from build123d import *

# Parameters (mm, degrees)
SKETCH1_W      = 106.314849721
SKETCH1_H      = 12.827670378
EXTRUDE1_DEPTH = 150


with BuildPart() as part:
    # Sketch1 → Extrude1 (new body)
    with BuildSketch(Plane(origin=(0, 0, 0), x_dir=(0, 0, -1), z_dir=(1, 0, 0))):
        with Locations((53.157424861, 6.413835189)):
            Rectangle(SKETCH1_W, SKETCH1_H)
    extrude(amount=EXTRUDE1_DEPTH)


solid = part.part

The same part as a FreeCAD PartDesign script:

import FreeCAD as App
import Part
import Sketcher

doc = App.newDocument("Part")
body = doc.addObject("PartDesign::Body", "Body")

# Sketch on YZ plane
sketch1 = doc.addObject("Sketcher::SketchObject", "Sketch")
body.addObject(sketch1)
sketch1.AttachmentSupport = (doc.YZ_Plane, [""])
sketch1.MapMode = "FlatFace"
sketch1.addGeometry([
    Part.LineSegment(App.Vector(13, 0, 0), App.Vector(0, 0, 0)),
    Part.LineSegment(App.Vector(0, 0, 0), App.Vector(0, -106, 0)),
    Part.LineSegment(App.Vector(0, -106, 0), App.Vector(13, -106, 0)),
    Part.LineSegment(App.Vector(13, -106, 0), App.Vector(13, 0, 0)),
], False)
sketch1.addConstraint([
    Sketcher.Constraint("Coincident", 0, 2, 1, 1),
    Sketcher.Constraint("Coincident", 1, 2, 2, 1),
    Sketcher.Constraint("Coincident", 2, 2, 3, 1),
    Sketcher.Constraint("Coincident", 3, 2, 0, 1),
    Sketcher.Constraint("Horizontal", 0),
    Sketcher.Constraint("Vertical", 1),
    Sketcher.Constraint("Horizontal", 2),
    Sketcher.Constraint("Vertical", 3),
    Sketcher.Constraint("Coincident", 0, 2, -1, 1),
    Sketcher.Constraint("DistanceX", 0, 2, 0, 1, 12.82767),
    Sketcher.Constraint("DistanceY", 1, 2, 1, 1, 106.31485),
])
pad1 = doc.addObject("PartDesign::Pad", "Pad")
body.addObject(pad1)
pad1.Profile = sketch1
pad1.Length = 150

doc.recompute()
